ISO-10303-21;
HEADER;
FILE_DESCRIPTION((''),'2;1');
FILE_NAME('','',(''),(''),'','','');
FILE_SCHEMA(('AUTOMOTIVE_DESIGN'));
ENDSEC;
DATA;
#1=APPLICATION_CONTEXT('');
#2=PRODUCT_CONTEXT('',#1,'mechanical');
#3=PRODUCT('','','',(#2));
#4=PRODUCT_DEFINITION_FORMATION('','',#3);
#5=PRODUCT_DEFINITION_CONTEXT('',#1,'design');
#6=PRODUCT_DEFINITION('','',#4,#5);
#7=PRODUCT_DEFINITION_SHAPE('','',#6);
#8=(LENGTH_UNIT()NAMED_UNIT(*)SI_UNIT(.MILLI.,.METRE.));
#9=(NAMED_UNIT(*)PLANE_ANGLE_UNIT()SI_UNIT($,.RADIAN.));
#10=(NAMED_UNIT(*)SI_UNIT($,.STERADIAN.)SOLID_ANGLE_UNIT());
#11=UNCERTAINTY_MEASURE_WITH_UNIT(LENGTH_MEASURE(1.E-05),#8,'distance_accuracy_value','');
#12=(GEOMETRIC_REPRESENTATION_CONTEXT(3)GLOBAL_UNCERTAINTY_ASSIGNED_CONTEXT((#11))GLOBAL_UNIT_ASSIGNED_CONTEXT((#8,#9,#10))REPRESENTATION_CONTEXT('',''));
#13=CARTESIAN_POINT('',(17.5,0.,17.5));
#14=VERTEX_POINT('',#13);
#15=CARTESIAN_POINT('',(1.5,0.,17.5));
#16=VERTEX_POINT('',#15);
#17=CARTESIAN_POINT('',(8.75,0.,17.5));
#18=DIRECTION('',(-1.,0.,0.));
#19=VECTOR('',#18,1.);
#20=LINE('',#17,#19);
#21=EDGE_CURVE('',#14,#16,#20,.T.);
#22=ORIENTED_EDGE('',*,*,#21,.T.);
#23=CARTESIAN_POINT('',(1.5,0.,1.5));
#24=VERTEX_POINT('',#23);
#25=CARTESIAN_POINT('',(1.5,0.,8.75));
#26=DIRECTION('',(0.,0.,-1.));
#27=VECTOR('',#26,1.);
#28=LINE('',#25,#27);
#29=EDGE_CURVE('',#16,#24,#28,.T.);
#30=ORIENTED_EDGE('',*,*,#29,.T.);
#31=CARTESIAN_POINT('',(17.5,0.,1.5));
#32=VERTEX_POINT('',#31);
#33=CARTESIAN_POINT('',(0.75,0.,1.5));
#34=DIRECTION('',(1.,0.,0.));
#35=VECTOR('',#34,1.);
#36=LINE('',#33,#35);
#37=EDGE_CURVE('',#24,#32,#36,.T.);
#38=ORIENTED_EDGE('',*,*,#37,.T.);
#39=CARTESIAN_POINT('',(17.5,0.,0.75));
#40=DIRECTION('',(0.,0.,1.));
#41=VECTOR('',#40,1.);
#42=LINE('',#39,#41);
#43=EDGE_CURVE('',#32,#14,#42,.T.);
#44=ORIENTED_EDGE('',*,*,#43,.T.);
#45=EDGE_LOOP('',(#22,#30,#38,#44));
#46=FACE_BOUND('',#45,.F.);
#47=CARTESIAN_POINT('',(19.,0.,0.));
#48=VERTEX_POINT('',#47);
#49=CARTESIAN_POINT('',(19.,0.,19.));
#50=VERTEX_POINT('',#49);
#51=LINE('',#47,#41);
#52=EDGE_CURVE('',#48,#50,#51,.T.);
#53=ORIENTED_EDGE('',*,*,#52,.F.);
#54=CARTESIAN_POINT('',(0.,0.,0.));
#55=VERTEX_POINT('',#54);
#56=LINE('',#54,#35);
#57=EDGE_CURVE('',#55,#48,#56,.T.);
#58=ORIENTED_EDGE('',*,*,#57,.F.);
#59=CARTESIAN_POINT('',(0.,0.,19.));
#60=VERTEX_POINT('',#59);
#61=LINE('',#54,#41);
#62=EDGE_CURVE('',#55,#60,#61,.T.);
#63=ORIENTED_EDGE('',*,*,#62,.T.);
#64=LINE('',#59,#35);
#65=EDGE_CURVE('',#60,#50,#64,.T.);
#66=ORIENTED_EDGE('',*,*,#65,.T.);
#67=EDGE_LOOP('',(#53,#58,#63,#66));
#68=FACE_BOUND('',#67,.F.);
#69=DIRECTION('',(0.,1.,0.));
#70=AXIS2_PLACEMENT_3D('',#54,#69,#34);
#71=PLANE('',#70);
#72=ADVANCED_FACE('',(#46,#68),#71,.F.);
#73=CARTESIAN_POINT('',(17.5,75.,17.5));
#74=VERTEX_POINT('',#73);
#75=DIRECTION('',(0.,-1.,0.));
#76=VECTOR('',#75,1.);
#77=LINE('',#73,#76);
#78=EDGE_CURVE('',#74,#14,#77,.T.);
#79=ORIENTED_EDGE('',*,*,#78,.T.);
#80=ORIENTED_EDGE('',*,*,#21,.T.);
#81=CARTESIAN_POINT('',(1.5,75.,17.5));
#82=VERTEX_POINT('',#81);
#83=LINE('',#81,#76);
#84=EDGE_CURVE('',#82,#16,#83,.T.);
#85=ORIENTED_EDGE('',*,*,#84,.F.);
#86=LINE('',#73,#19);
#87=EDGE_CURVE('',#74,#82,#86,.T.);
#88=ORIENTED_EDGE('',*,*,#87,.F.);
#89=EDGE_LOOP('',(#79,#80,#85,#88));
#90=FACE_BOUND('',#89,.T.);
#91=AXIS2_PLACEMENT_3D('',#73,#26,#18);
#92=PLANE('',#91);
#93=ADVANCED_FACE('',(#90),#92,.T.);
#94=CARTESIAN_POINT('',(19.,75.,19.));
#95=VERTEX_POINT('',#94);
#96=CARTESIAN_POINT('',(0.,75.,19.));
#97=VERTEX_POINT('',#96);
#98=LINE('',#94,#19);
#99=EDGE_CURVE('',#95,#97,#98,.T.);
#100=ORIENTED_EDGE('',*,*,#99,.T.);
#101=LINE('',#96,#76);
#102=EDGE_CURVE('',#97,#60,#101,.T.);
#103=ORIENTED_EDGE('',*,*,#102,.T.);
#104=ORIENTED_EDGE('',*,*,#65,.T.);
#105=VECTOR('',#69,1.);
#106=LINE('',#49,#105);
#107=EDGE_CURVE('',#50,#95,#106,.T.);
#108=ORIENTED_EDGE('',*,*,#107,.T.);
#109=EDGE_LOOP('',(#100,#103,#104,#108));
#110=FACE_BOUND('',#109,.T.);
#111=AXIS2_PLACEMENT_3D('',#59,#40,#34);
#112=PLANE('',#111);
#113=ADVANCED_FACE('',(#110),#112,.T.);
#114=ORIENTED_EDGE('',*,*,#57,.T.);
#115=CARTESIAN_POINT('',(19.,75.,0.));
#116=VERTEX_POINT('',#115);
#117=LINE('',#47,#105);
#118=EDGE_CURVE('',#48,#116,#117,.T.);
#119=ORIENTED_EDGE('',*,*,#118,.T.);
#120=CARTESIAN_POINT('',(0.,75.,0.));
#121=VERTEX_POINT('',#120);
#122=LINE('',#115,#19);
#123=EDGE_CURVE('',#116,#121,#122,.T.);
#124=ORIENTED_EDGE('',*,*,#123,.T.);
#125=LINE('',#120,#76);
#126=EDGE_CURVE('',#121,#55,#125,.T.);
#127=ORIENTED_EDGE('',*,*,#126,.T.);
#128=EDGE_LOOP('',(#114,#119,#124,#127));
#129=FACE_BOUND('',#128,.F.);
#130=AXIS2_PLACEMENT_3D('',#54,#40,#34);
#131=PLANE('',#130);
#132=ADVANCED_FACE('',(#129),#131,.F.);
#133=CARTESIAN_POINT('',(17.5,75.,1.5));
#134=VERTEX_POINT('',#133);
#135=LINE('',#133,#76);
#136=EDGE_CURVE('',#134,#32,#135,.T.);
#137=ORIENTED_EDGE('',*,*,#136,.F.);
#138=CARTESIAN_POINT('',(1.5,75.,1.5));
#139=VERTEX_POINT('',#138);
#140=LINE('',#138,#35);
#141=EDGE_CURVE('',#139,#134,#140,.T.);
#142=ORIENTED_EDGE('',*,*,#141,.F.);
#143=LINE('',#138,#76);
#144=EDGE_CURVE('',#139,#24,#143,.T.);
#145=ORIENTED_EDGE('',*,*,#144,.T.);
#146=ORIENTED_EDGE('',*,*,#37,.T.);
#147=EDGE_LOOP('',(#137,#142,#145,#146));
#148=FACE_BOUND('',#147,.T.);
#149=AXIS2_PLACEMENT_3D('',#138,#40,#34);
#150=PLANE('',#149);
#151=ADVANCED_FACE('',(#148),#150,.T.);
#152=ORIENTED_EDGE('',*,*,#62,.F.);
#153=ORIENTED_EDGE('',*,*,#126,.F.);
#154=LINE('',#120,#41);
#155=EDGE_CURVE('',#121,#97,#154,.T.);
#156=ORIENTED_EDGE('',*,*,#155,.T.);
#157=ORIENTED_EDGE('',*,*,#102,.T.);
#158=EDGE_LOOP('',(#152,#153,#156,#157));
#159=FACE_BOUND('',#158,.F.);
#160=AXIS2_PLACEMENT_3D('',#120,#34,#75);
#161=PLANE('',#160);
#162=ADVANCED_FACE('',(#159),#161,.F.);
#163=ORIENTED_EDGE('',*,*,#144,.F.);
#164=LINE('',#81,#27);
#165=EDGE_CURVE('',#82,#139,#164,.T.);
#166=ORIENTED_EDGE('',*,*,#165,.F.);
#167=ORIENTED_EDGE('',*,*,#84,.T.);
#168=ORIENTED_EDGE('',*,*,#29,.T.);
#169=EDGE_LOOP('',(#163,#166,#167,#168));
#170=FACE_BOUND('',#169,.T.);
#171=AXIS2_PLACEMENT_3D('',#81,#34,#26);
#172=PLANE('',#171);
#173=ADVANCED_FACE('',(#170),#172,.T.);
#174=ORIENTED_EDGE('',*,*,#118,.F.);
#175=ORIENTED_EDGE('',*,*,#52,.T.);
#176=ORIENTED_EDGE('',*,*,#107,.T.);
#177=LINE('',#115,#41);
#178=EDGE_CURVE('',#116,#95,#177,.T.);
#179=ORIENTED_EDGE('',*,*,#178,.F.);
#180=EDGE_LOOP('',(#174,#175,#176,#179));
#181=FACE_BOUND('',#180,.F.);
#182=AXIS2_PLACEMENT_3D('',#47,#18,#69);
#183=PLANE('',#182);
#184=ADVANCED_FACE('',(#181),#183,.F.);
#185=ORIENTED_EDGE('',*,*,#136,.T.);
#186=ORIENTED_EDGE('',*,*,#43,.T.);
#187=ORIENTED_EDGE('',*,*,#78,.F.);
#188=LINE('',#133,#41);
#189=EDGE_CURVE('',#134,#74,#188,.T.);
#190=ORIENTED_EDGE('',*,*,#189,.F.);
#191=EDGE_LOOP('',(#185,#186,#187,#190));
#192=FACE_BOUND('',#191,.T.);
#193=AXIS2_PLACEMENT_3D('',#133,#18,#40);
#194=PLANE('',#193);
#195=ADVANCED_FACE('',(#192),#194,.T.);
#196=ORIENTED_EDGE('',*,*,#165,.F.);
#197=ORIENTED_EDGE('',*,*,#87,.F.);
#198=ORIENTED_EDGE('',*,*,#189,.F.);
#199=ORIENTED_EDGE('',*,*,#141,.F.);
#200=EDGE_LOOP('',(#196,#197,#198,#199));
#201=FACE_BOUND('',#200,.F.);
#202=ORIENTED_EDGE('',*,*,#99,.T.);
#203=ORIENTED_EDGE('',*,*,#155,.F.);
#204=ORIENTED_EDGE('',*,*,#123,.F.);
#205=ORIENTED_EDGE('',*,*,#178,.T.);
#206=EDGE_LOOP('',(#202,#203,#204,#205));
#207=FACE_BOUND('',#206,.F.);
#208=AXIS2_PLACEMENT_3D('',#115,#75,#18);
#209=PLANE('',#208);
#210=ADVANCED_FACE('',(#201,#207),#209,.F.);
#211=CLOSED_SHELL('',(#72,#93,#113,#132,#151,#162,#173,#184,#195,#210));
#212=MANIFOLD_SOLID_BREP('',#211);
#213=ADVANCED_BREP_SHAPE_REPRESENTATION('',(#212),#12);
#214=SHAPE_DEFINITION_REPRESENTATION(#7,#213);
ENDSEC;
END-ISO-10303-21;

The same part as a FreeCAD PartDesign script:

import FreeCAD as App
import Part
import Sketcher

V = App.Vector
Q = App.Units.Quantity


def add_polygon(sketch, points):
    """Adds a closed chain of lines whose ends are joined by coincident constraints."""
    first, n = sketch.GeometryCount, len(points)
    for a, b in zip(points, points[1:] + points[:1]):
        sketch.addGeometry(Part.LineSegment(App.Vector(*a, 0), App.Vector(*b, 0)), False)
    for i in range(n):
        sketch.addConstraint(Sketcher.Constraint("Coincident", first + i, 2, first + (i + 1) % n, 1))

doc = App.newDocument("Part")
params = doc.addObject("Spreadsheet::Sheet", "Params")
for row, (alias, value) in enumerate([
    ("sketch1_width", "19 mm"),
    ("sketch1_height", "75 mm"),
    ("pad1_length", "19 mm"),
    ("sketch2_width", "16 mm"),
], start=1):
    params.set(f"A{row}", alias)
    params.set(f"B{row}", "=" + value)
    params.setAlias(f"B{row}", alias)

body = doc.addObject("PartDesign::Body", "Body")

# Sketch on XY plane
sketch1 = body.newObject("Sketcher::SketchObject", "Sketch")
sketch1.AttachmentSupport = (doc.getObject("XY_Plane"), [""])
sketch1.MapMode = "FlatFace"
add_polygon(sketch1, [(0, 75), (0, 0), (19, 0), (19, 75)])  # lines 0-3
sketch1.addConstraint(Sketcher.Constraint("Vertical", 0))
sketch1.addConstraint(Sketcher.Constraint("Horizontal", 1))
sketch1.addConstraint(Sketcher.Constraint("Vertical", 2))
sketch1.addConstraint(Sketcher.Constraint("Horizontal", 3))
sketch1.addConstraint(Sketcher.Constraint("Coincident", 0, 2, -1, 1))
sketch1.addConstraint(Sketcher.Constraint("DistanceX", 1, 1, 1, 2, Q("19 mm")))
sketch1.addConstraint(Sketcher.Constraint("DistanceY", 0, 2, 0, 1, Q("75 mm")))
sketch1.setExpression("Constraints[9]", "Params.sketch1_width")
sketch1.setExpression("Constraints[10]", "Params.sketch1_height")
pad1 = body.newObject("PartDesign::Pad", "Pad")
pad1.Profile = sketch1
pad1.setExpression("Length", "Params.pad1_length")

# Sketch on XZ plane
sketch2 = body.newObject("Sketcher::SketchObject", "Sketch001")
sketch2.AttachmentSupport = (doc.getObject("XZ_Plane"), [""])
sketch2.MapMode = "FlatFace"
sketch2.AttachmentOffset = App.Placement(V(0, 0, -75), App.Rotation())
add_polygon(sketch2, [(2, 2), (2, 18), (18, 18), (18, 2)])  # lines 0-3
sketch2.addConstraint(Sketcher.Constraint("Vertical", 0))
sketch2.addConstraint(Sketcher.Constraint("Horizontal", 1))
sketch2.addConstraint(Sketcher.Constraint("Vertical", 2))
sketch2.addConstraint(Sketcher.Constraint("Horizontal", 3))
sketch2.addConstraint(Sketcher.Constraint("Equal", 3, 0))
sketch2.addConstraint(Sketcher.Constraint("DistanceX", -1, 1, 0, 2, Q("1.5 mm")))
sketch2.addConstraint(Sketcher.Constraint("DistanceY", -1, 1, 2, 2, Q("1.5 mm")))
sketch2.addConstraint(Sketcher.Constraint("DistanceX", 1, 1, 1, 2, Q("16 mm")))
sketch2.setExpression("Constraints[11]", "Params.sketch2_width")
pocket1 = body.newObject("PartDesign::Pocket", "Pocket")
pocket1.Profile = sketch2
pocket1.Type = "ThroughAll"
pocket1.Reversed = True

doc.recompute()
